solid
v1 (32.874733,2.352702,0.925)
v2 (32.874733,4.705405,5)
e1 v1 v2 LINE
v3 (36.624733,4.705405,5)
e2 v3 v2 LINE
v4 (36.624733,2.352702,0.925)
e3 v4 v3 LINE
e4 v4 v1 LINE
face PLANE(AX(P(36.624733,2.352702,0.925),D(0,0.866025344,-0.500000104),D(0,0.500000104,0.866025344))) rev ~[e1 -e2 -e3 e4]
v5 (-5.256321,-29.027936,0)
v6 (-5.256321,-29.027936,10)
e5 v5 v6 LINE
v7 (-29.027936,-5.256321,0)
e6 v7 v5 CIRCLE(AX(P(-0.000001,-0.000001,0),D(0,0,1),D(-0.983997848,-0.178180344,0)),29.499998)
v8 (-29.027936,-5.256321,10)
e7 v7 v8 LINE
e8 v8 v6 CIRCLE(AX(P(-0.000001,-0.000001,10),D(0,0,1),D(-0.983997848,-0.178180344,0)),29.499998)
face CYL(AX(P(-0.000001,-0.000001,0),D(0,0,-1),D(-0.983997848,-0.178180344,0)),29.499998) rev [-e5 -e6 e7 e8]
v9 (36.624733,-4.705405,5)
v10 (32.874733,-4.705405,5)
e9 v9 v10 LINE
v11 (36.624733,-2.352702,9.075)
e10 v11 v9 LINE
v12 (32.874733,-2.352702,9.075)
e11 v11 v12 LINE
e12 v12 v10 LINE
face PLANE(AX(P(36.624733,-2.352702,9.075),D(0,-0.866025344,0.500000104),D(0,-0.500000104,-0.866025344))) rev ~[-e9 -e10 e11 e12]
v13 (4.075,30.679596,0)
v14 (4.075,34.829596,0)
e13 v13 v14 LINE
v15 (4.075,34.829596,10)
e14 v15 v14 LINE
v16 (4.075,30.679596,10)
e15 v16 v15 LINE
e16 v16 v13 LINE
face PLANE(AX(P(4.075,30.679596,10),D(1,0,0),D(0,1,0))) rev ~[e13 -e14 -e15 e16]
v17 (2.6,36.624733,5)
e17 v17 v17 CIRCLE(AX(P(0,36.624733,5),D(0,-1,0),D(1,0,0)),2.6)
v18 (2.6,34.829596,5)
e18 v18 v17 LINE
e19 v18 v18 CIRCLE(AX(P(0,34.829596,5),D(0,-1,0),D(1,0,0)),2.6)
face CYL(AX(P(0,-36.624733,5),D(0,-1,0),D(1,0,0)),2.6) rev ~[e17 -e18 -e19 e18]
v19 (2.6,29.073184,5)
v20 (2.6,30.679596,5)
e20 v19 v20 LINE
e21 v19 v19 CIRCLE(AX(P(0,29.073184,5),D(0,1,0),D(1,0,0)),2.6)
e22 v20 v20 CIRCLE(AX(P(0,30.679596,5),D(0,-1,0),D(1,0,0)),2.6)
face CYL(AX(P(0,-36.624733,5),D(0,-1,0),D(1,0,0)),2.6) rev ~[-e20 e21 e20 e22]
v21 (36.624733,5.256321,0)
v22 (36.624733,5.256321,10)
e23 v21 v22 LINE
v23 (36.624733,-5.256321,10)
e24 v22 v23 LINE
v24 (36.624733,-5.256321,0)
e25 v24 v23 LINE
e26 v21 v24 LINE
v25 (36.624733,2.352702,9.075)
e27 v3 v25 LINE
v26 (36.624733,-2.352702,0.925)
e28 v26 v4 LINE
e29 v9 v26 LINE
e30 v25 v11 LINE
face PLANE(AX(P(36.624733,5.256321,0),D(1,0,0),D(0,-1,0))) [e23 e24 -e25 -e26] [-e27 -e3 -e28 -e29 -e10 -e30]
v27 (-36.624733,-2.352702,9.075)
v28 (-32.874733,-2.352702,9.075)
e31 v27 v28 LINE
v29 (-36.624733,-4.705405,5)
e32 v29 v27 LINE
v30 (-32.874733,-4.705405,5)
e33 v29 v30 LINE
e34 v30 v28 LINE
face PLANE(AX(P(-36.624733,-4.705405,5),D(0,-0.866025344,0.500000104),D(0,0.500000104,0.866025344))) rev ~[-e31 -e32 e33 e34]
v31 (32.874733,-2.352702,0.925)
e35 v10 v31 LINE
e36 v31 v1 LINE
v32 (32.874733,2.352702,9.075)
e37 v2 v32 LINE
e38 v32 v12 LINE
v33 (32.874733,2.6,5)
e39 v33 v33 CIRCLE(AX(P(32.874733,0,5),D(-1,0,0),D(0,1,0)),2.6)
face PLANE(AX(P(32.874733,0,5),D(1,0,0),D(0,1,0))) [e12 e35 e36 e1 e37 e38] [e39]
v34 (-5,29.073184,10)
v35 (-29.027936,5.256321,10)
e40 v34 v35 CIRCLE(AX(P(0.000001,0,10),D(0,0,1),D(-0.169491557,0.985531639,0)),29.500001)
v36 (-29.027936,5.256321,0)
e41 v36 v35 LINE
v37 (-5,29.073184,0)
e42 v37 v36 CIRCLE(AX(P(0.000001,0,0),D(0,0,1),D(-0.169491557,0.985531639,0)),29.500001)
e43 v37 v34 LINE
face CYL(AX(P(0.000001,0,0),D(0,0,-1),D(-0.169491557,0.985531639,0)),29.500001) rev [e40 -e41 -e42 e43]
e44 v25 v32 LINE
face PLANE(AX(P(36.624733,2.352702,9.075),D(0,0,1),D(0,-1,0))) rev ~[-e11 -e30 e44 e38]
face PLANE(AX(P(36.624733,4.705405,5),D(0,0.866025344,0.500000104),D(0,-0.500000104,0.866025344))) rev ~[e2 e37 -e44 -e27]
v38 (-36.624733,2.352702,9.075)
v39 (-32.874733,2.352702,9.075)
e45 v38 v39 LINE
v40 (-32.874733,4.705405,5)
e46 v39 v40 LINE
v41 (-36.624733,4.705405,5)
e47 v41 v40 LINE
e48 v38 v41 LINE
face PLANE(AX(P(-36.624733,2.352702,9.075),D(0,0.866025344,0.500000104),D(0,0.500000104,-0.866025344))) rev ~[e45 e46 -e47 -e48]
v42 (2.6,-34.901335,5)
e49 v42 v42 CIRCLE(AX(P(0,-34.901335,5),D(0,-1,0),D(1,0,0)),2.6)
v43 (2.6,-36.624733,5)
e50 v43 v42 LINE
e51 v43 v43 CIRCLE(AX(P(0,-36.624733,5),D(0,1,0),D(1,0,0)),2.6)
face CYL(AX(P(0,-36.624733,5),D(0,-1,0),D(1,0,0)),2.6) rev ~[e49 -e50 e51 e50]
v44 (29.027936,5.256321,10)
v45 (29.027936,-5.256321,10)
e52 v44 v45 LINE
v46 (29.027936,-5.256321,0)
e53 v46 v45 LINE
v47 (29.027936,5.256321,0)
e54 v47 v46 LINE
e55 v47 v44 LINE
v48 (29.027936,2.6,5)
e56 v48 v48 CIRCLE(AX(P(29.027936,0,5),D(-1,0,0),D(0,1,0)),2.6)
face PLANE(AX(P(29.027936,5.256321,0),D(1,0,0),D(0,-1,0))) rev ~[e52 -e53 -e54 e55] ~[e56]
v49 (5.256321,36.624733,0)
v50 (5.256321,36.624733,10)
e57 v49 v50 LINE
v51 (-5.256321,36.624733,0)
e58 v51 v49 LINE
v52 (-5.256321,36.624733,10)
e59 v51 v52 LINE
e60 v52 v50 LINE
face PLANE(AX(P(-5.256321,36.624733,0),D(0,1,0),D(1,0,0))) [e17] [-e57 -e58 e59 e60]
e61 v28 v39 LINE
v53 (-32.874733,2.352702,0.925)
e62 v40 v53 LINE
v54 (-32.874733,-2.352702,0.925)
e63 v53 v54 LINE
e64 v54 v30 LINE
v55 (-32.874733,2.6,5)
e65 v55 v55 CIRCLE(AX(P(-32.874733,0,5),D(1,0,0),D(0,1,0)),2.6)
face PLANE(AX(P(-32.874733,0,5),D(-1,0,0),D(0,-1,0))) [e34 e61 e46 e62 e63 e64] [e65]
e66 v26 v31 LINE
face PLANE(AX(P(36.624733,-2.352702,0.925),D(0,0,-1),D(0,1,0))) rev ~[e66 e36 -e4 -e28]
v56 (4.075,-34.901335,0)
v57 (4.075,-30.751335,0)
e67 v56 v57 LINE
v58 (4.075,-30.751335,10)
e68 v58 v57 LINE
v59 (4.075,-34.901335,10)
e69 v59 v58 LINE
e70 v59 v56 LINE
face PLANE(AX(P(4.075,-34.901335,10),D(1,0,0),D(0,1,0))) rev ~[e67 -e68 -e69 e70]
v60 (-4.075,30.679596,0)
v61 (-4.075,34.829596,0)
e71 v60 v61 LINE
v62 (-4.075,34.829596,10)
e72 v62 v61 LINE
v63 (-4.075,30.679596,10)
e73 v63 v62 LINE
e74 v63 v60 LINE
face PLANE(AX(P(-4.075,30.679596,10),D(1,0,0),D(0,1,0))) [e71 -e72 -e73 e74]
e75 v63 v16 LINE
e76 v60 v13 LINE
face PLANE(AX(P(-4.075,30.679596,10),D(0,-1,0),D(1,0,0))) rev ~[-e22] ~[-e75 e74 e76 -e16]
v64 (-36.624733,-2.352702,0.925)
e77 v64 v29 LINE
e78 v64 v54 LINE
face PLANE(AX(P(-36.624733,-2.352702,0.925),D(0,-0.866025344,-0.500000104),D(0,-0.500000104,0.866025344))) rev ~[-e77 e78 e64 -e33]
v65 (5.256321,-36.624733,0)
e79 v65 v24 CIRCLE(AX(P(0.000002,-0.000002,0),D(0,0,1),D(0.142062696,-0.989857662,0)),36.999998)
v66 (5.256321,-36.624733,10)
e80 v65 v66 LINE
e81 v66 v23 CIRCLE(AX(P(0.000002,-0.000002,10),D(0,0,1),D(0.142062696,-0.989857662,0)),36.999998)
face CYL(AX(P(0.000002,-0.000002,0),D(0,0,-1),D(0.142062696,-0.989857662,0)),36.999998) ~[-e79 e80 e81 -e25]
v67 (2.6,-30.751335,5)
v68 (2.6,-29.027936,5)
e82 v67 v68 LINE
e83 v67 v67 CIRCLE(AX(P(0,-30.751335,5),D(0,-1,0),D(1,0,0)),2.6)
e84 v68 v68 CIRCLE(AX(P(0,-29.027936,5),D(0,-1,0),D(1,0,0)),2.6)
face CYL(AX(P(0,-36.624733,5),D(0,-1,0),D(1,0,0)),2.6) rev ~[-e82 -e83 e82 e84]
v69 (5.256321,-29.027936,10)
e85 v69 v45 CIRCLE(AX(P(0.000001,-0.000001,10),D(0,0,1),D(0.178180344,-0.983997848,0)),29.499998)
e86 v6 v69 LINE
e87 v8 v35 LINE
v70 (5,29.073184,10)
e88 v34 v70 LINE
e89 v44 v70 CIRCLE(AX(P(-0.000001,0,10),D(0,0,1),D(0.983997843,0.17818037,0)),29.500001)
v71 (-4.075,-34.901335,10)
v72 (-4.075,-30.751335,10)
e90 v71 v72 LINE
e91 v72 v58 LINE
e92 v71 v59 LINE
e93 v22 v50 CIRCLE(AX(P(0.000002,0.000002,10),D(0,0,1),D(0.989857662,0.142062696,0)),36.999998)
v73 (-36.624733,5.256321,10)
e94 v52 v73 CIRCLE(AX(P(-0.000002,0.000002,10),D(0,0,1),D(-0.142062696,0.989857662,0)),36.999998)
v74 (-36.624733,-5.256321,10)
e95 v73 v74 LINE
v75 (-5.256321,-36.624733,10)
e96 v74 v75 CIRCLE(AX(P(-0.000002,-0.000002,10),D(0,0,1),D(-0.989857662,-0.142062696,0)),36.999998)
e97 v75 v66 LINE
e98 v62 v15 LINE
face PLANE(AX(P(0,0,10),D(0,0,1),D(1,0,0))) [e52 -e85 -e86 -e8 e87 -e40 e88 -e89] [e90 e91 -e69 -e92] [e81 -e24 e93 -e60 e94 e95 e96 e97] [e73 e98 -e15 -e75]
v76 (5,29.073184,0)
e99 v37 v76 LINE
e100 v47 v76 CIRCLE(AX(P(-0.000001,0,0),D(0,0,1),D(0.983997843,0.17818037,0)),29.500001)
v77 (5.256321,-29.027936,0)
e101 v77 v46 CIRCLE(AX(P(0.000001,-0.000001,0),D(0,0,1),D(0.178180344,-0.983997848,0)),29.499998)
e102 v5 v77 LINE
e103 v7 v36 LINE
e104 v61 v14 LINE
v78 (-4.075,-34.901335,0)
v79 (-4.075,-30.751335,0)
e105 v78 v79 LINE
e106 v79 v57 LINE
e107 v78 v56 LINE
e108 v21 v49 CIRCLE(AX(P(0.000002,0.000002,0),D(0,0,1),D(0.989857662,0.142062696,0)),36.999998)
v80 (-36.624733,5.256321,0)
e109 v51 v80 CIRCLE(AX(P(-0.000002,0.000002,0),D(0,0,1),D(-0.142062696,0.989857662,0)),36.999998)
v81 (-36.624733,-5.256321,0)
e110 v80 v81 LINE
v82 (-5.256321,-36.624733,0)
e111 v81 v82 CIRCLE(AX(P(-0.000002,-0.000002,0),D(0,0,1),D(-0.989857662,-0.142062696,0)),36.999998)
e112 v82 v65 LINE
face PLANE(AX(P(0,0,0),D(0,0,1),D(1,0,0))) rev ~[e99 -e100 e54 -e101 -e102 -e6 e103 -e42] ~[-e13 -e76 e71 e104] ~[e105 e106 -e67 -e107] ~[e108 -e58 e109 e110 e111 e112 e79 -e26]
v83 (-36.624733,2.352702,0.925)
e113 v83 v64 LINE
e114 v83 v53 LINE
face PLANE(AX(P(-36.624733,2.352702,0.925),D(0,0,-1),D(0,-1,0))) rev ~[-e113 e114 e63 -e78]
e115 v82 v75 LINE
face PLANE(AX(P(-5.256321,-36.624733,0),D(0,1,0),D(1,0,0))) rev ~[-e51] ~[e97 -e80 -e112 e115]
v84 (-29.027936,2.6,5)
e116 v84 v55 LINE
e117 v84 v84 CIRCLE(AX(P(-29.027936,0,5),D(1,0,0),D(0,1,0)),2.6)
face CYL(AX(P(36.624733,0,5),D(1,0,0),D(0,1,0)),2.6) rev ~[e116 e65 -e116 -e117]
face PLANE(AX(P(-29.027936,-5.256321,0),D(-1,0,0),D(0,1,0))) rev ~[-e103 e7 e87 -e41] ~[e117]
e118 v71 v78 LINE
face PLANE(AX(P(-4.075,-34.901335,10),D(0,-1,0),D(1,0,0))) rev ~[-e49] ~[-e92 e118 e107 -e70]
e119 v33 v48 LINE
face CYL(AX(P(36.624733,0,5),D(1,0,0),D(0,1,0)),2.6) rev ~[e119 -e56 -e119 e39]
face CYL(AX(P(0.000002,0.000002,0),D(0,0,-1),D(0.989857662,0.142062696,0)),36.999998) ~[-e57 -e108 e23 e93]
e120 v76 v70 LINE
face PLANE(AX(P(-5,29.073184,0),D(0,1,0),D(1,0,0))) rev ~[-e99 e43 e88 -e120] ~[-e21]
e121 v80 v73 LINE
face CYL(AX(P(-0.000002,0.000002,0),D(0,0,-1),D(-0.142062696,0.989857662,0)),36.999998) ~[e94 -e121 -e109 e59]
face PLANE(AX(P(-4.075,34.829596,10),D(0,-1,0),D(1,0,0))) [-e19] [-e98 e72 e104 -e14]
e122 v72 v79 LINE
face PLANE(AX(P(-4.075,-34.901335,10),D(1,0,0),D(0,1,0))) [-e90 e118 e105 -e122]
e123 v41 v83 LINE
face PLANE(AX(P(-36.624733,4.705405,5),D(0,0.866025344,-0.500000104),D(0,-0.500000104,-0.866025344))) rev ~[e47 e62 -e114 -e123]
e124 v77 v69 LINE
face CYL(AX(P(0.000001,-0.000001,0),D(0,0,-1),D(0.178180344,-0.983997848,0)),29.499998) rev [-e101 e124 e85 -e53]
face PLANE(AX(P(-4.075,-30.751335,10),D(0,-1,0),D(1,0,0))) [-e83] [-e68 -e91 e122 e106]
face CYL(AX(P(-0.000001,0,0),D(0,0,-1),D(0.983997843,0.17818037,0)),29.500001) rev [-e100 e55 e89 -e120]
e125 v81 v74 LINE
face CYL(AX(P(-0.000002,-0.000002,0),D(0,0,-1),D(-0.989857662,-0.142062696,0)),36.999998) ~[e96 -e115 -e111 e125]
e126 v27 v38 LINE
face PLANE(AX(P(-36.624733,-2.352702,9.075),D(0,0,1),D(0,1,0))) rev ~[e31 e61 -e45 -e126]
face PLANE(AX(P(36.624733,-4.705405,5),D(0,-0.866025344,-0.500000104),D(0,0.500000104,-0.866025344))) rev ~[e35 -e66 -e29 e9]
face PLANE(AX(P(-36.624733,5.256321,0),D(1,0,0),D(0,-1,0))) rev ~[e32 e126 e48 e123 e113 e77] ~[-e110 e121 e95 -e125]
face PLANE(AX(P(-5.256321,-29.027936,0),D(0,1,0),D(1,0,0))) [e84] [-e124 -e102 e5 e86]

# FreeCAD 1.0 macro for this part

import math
import FreeCAD as App
import Part
import Sketcher
Q = App.Units.Quantity


def add_polygon(sketch, points):
    """Adds a closed chain of lines whose ends are joined by coincident constraints."""
    first, n = sketch.GeometryCount, len(points)
    for a, b in zip(points, points[1:] + points[:1]):
        sketch.addGeometry(Part.LineSegment(App.Vector(*a, 0), App.Vector(*b, 0)), False)
    for i in range(n):
        sketch.addConstraint(Sketcher.Constraint("Coincident", first + i, 2, first + (i + 1) % n, 1))

doc = App.newDocument("Part")
body = doc.addObject("PartDesign::Body", "Body")

# Sketch on XY plane
sketch1 = body.newObject("Sketcher::SketchObject", "Sketch")
sketch1.AttachmentSupport = (doc.getObject("XY_Plane"), [""])
sketch1.MapMode = "FlatFace"
sketch1.addGeometry([
    Part.LineSegment(App.Vector(-37, 5, 0), App.Vector(-37, -5, 0)),  # 0
    Part.ArcOfCircle(Part.Circle(App.Vector(0, 0, 0), App.Vector(0, 0, 1), 37), math.radians(-172), math.radians(-98)),  # 1
    Part.LineSegment(App.Vector(-5, -37, 0), App.Vector(5, -37, 0)),  # 2
    Part.ArcOfCircle(Part.Circle(App.Vector(0, 0, 0), App.Vector(0, 0, 1), 37), math.radians(-82), math.radians(-8)),  # 3
    Part.LineSegment(App.Vector(37, -5, 0), App.Vector(37, 5, 0)),  # 4
    Part.ArcOfCircle(Part.Circle(App.Vector(0, 0, 0), App.Vector(0, 0, 1), 37), math.radians(8), math.radians(82)),  # 5
    Part.LineSegment(App.Vector(5, 37, 0), App.Vector(-5, 37, 0)),  # 6
    Part.ArcOfCircle(Part.Circle(App.Vector(0, 0, 0), App.Vector(0, 0, 1), 37), math.radians(98), math.radians(172)),  # 7
    Part.ArcOfCircle(Part.Circle(App.Vector(0, 0, 0), App.Vector(0, 0, 1), 29), math.radians(-170), math.radians(-100)),  # 8
    Part.LineSegment(App.Vector(-29, -5, 0), App.Vector(-29, 5, 0)),  # 9
    Part.ArcOfCircle(Part.Circle(App.Vector(0, 0, 0), App.Vector(0, 0, 1), 30), math.radians(100), math.radians(170)),  # 10
    Part.LineSegment(App.Vector(-5, 29, 0), App.Vector(5, 29, 0)),  # 11
    Part.ArcOfCircle(Part.Circle(App.Vector(0, 0, 0), App.Vector(0, 0, 1), 30), math.radians(10), math.radians(80)),  # 12
    Part.LineSegment(App.Vector(29, 5, 0), App.Vector(29, -5, 0)),  # 13
    Part.ArcOfCircle(Part.Circle(App.Vector(0, 0, 0), App.Vector(0, 0, 1), 29), math.radians(-80), math.radians(-10)),  # 14
    Part.LineSegment(App.Vector(5, -29, 0), App.Vector(-5, -29, 0)),  # 15
], False)
sketch1.addConstraint([
    Sketcher.Constraint("Coincident", 0, 2, 1, 1),
    Sketcher.Constraint("Coincident", 1, 2, 2, 1),
    Sketcher.Constraint("Coincident", 2, 2, 3, 1),
    Sketcher.Constraint("Coincident", 3, 2, 4, 1),
    Sketcher.Constraint("Coincident", 4, 2, 5, 1),
    Sketcher.Constraint("Coincident", 5, 2, 6, 1),
    Sketcher.Constraint("Coincident", 6, 2, 7, 1),
    Sketcher.Constraint("Coincident", 7, 2, 0, 1),
    Sketcher.Constraint("Coincident", 8, 1, 9, 1),
    Sketcher.Constraint("Coincident", 9, 2, 10, 2),
    Sketcher.Constraint("Coincident", 10, 1, 11, 1),
    Sketcher.Constraint("Coincident", 11, 2, 12, 2),
    Sketcher.Constraint("Coincident", 12, 1, 13, 1),
    Sketcher.Constraint("Coincident", 13, 2, 14, 2),
    Sketcher.Constraint("Coincident", 14, 1, 15, 1),
    Sketcher.Constraint("Coincident", 15, 2, 8, 2),
    Sketcher.Constraint("Vertical", 0),
    Sketcher.Constraint("Horizontal", 2),
    Sketcher.Constraint("Vertical", 4),
    Sketcher.Constraint("Horizontal", 6),
    Sketcher.Constraint("Vertical", 9),
    Sketcher.Constraint("Horizontal", 11),
    Sketcher.Constraint("Vertical", 13),
    Sketcher.Constraint("Horizontal", 15),
    Sketcher.Constraint("Coincident", 1, 3, -1, 1),
    Sketcher.Constraint("Coincident", 3, 3, -1, 1),
    Sketcher.Constraint("Coincident", 5, 3, -1, 1),
    Sketcher.Constraint("Coincident", 7, 3, -1, 1),
    Sketcher.Constraint("Coincident", 8, 3, -1, 1),
    Sketcher.Constraint("Coincident", 10, 3, -1, 1),
    Sketcher.Constraint("Coincident", 12, 3, -1, 1),
    Sketcher.Constraint("Coincident", 14, 3, -1, 1),
    Sketcher.Constraint("Equal", 1, 3),
    Sketcher.Constraint("Equal", 3, 5),
    Sketcher.Constraint("Equal", 5, 7),
    Sketcher.Constraint("Equal", 10, 12),
    Sketcher.Constraint("Equal", 8, 14),
    Sketcher.Constraint("Symmetric", 8, 1, 12, 1, -1, 1),
    Sketcher.Constraint("Horizontal", 0, 2, 3, 2),
    Sketcher.Constraint("Horizontal", 3, 2, 8, 1),
    Sketcher.Constraint("Vertical", 2, 2, 5, 2),
    Sketcher.Constraint("Vertical", 5, 2, 14, 1),
    Sketcher.Constraint("Equal", 15, 0),
    Sketcher.Constraint("Radius", 8, Q("29.499998 mm")),
    Sketcher.Constraint("DistanceX", 11, 1, 11, 2, Q("10 mm")),
    Sketcher.Constraint("Radius", 1, Q("36.999998 mm")),
    Sketcher.Constraint("DistanceX", 2, 1, 2, 2, Q("10.512642 mm")),
])
pad1 = body.newObject("PartDesign::Pad", "Pad")
pad1.Profile = sketch1
pad1.Length = 10

# Sketch on XZ plane
sketch2 = body.newObject("Sketcher::SketchObject", "Sketch001")
sketch2.AttachmentSupport = (doc.getObject("XZ_Plane"), [""])
sketch2.MapMode = "FlatFace"
sketch2.AttachmentOffset = App.Placement(App.Vector(0, 0, 36.624733), App.Rotation())
sketch2.addGeometry(Part.Circle(App.Vector(0, 5, 0), App.Vector(0, 0, 1), 2.6), False)
sketch2.addConstraint([
    Sketcher.Constraint("PointOnObject", 0, 3, -2),
    Sketcher.Constraint("Diameter", 0, Q("5.2 mm")),
    Sketcher.Constraint("DistanceY", -1, 1, 0, 3, Q("5 mm")),
])
pocket1 = body.newObject("PartDesign::Pocket", "Pocket")
pocket1.Profile = sketch2
pocket1.Length = 73.249467

# Sketch on YZ plane
sketch3 = body.newObject("Sketcher::SketchObject", "Sketch002")
sketch3.AttachmentSupport = (doc.getObject("YZ_Plane"), [""])
sketch3.MapMode = "FlatFace"
sketch3.AttachmentOffset = App.Placement(App.Vector(0, 0, 36.624733), App.Rotation())
add_polygon(sketch3, [(4.7, 5), (2.4, 9.1), (-2.4, 9.1), (-4.7, 5), (-2.4, 0.9), (2.4, 0.9)])  # lines 0-5
sketch3.addConstraint([
    Sketcher.Constraint("Horizontal", 1),
    Sketcher.Constraint("Horizontal", 4),
    Sketcher.Constraint("Symmetric", 2, 2, 5, 2, -2),
    Sketcher.Constraint("Parallel", 0, 3),
    Sketcher.Constraint("Parallel", 2, 5),
    Sketcher.Constraint("Vertical", 1, 2, 3, 2),
    Sketcher.Constraint("Vertical", 0, 2, 4, 2),
    Sketcher.Constraint("Angle", 0, Q("120.000007 deg")),
    Sketcher.Constraint("DistanceY", -1, 1, 2, 2, Q("5 mm")),
    Sketcher.Constraint("DistanceY", 3, 2, 1, 2, Q("8.15 mm")),
    Sketcher.Constraint("DistanceX", -1, 1, 0, 2, Q("2.352702 mm")),
])
pocket2 = body.newObject("PartDesign::Pocket", "Pocket001")
pocket2.Profile = sketch3
pocket2.Length = 3.75
doc.recompute()

polarpattern = body.newObject("PartDesign::PolarPattern", "PolarPattern")
polarpattern.Originals = [pocket2]
polarpattern.Axis = (doc.getObject("Z_Axis"), [""])
polarpattern.Angle = 360
polarpattern.Occurrences = 2
body.Tip = polarpattern
doc.recompute()

polarpattern2 = body.newObject("PartDesign::PolarPattern", "PolarPattern001")
polarpattern2.Originals = [pocket1]
polarpattern2.Axis = (doc.getObject("Z_Axis"), [""])
polarpattern2.Angle = 360
polarpattern2.Occurrences = 4
body.Tip = polarpattern2

# Sketch on XY plane
sketch4 = body.newObject("Sketcher::SketchObject", "Sketch003")
sketch4.AttachmentSupport = (doc.getObject("XY_Plane"), [""])
sketch4.MapMode = "FlatFace"
sketch4.AttachmentOffset = App.Placement(App.Vector(0, 0, 10), App.Rotation())
add_polygon(sketch4, [(-4.1, -30.8), (-4.1, -34.9), (4.1, -34.9), (4.1, -30.8)])  # lines 0-3
add_polygon(sketch4, [(-4.1, 34.8), (-4.1, 30.7), (4.1, 30.7), (4.1, 34.8)])  # lines 4-7
sketch4.addConstraint([
    Sketcher.Constraint("Vertical", 0),
    Sketcher.Constraint("Horizontal", 1),
    Sketcher.Constraint("Vertical", 2),
    Sketcher.Constraint("Horizontal", 3),
    Sketcher.Constraint("Vertical", 4),
    Sketcher.Constraint("Horizontal", 5),
    Sketcher.Constraint("Vertical", 6),
    Sketcher.Constraint("Horizontal", 7),
    Sketcher.Constraint("Vertical", 3, 2, 4, 2),
    Sketcher.Constraint("Vertical", 2, 2, 5, 2),
    Sketcher.Constraint("Equal", 2, 4),
    Sketcher.Constraint("DistanceX", 1, 1, 1, 2, Q("8.15 mm")),
    Sketcher.Constraint("DistanceY", 0, 2, 0, 1, Q("4.15 mm")),
    Sketcher.Constraint("DistanceX", 0, 2, -1, 1, Q("4.075 mm")),
    Sketcher.Constraint("DistanceY", 3, 2, 4, 2, Q("61.430931 mm")),
    Sketcher.Constraint("DistanceY", 0, 2, -1, 1, Q("34.901335 mm")),
])
pocket3 = body.newObject("PartDesign::Pocket", "Pocket002")
pocket3.Profile = sketch4
pocket3.Length = 10

doc.recompute()
